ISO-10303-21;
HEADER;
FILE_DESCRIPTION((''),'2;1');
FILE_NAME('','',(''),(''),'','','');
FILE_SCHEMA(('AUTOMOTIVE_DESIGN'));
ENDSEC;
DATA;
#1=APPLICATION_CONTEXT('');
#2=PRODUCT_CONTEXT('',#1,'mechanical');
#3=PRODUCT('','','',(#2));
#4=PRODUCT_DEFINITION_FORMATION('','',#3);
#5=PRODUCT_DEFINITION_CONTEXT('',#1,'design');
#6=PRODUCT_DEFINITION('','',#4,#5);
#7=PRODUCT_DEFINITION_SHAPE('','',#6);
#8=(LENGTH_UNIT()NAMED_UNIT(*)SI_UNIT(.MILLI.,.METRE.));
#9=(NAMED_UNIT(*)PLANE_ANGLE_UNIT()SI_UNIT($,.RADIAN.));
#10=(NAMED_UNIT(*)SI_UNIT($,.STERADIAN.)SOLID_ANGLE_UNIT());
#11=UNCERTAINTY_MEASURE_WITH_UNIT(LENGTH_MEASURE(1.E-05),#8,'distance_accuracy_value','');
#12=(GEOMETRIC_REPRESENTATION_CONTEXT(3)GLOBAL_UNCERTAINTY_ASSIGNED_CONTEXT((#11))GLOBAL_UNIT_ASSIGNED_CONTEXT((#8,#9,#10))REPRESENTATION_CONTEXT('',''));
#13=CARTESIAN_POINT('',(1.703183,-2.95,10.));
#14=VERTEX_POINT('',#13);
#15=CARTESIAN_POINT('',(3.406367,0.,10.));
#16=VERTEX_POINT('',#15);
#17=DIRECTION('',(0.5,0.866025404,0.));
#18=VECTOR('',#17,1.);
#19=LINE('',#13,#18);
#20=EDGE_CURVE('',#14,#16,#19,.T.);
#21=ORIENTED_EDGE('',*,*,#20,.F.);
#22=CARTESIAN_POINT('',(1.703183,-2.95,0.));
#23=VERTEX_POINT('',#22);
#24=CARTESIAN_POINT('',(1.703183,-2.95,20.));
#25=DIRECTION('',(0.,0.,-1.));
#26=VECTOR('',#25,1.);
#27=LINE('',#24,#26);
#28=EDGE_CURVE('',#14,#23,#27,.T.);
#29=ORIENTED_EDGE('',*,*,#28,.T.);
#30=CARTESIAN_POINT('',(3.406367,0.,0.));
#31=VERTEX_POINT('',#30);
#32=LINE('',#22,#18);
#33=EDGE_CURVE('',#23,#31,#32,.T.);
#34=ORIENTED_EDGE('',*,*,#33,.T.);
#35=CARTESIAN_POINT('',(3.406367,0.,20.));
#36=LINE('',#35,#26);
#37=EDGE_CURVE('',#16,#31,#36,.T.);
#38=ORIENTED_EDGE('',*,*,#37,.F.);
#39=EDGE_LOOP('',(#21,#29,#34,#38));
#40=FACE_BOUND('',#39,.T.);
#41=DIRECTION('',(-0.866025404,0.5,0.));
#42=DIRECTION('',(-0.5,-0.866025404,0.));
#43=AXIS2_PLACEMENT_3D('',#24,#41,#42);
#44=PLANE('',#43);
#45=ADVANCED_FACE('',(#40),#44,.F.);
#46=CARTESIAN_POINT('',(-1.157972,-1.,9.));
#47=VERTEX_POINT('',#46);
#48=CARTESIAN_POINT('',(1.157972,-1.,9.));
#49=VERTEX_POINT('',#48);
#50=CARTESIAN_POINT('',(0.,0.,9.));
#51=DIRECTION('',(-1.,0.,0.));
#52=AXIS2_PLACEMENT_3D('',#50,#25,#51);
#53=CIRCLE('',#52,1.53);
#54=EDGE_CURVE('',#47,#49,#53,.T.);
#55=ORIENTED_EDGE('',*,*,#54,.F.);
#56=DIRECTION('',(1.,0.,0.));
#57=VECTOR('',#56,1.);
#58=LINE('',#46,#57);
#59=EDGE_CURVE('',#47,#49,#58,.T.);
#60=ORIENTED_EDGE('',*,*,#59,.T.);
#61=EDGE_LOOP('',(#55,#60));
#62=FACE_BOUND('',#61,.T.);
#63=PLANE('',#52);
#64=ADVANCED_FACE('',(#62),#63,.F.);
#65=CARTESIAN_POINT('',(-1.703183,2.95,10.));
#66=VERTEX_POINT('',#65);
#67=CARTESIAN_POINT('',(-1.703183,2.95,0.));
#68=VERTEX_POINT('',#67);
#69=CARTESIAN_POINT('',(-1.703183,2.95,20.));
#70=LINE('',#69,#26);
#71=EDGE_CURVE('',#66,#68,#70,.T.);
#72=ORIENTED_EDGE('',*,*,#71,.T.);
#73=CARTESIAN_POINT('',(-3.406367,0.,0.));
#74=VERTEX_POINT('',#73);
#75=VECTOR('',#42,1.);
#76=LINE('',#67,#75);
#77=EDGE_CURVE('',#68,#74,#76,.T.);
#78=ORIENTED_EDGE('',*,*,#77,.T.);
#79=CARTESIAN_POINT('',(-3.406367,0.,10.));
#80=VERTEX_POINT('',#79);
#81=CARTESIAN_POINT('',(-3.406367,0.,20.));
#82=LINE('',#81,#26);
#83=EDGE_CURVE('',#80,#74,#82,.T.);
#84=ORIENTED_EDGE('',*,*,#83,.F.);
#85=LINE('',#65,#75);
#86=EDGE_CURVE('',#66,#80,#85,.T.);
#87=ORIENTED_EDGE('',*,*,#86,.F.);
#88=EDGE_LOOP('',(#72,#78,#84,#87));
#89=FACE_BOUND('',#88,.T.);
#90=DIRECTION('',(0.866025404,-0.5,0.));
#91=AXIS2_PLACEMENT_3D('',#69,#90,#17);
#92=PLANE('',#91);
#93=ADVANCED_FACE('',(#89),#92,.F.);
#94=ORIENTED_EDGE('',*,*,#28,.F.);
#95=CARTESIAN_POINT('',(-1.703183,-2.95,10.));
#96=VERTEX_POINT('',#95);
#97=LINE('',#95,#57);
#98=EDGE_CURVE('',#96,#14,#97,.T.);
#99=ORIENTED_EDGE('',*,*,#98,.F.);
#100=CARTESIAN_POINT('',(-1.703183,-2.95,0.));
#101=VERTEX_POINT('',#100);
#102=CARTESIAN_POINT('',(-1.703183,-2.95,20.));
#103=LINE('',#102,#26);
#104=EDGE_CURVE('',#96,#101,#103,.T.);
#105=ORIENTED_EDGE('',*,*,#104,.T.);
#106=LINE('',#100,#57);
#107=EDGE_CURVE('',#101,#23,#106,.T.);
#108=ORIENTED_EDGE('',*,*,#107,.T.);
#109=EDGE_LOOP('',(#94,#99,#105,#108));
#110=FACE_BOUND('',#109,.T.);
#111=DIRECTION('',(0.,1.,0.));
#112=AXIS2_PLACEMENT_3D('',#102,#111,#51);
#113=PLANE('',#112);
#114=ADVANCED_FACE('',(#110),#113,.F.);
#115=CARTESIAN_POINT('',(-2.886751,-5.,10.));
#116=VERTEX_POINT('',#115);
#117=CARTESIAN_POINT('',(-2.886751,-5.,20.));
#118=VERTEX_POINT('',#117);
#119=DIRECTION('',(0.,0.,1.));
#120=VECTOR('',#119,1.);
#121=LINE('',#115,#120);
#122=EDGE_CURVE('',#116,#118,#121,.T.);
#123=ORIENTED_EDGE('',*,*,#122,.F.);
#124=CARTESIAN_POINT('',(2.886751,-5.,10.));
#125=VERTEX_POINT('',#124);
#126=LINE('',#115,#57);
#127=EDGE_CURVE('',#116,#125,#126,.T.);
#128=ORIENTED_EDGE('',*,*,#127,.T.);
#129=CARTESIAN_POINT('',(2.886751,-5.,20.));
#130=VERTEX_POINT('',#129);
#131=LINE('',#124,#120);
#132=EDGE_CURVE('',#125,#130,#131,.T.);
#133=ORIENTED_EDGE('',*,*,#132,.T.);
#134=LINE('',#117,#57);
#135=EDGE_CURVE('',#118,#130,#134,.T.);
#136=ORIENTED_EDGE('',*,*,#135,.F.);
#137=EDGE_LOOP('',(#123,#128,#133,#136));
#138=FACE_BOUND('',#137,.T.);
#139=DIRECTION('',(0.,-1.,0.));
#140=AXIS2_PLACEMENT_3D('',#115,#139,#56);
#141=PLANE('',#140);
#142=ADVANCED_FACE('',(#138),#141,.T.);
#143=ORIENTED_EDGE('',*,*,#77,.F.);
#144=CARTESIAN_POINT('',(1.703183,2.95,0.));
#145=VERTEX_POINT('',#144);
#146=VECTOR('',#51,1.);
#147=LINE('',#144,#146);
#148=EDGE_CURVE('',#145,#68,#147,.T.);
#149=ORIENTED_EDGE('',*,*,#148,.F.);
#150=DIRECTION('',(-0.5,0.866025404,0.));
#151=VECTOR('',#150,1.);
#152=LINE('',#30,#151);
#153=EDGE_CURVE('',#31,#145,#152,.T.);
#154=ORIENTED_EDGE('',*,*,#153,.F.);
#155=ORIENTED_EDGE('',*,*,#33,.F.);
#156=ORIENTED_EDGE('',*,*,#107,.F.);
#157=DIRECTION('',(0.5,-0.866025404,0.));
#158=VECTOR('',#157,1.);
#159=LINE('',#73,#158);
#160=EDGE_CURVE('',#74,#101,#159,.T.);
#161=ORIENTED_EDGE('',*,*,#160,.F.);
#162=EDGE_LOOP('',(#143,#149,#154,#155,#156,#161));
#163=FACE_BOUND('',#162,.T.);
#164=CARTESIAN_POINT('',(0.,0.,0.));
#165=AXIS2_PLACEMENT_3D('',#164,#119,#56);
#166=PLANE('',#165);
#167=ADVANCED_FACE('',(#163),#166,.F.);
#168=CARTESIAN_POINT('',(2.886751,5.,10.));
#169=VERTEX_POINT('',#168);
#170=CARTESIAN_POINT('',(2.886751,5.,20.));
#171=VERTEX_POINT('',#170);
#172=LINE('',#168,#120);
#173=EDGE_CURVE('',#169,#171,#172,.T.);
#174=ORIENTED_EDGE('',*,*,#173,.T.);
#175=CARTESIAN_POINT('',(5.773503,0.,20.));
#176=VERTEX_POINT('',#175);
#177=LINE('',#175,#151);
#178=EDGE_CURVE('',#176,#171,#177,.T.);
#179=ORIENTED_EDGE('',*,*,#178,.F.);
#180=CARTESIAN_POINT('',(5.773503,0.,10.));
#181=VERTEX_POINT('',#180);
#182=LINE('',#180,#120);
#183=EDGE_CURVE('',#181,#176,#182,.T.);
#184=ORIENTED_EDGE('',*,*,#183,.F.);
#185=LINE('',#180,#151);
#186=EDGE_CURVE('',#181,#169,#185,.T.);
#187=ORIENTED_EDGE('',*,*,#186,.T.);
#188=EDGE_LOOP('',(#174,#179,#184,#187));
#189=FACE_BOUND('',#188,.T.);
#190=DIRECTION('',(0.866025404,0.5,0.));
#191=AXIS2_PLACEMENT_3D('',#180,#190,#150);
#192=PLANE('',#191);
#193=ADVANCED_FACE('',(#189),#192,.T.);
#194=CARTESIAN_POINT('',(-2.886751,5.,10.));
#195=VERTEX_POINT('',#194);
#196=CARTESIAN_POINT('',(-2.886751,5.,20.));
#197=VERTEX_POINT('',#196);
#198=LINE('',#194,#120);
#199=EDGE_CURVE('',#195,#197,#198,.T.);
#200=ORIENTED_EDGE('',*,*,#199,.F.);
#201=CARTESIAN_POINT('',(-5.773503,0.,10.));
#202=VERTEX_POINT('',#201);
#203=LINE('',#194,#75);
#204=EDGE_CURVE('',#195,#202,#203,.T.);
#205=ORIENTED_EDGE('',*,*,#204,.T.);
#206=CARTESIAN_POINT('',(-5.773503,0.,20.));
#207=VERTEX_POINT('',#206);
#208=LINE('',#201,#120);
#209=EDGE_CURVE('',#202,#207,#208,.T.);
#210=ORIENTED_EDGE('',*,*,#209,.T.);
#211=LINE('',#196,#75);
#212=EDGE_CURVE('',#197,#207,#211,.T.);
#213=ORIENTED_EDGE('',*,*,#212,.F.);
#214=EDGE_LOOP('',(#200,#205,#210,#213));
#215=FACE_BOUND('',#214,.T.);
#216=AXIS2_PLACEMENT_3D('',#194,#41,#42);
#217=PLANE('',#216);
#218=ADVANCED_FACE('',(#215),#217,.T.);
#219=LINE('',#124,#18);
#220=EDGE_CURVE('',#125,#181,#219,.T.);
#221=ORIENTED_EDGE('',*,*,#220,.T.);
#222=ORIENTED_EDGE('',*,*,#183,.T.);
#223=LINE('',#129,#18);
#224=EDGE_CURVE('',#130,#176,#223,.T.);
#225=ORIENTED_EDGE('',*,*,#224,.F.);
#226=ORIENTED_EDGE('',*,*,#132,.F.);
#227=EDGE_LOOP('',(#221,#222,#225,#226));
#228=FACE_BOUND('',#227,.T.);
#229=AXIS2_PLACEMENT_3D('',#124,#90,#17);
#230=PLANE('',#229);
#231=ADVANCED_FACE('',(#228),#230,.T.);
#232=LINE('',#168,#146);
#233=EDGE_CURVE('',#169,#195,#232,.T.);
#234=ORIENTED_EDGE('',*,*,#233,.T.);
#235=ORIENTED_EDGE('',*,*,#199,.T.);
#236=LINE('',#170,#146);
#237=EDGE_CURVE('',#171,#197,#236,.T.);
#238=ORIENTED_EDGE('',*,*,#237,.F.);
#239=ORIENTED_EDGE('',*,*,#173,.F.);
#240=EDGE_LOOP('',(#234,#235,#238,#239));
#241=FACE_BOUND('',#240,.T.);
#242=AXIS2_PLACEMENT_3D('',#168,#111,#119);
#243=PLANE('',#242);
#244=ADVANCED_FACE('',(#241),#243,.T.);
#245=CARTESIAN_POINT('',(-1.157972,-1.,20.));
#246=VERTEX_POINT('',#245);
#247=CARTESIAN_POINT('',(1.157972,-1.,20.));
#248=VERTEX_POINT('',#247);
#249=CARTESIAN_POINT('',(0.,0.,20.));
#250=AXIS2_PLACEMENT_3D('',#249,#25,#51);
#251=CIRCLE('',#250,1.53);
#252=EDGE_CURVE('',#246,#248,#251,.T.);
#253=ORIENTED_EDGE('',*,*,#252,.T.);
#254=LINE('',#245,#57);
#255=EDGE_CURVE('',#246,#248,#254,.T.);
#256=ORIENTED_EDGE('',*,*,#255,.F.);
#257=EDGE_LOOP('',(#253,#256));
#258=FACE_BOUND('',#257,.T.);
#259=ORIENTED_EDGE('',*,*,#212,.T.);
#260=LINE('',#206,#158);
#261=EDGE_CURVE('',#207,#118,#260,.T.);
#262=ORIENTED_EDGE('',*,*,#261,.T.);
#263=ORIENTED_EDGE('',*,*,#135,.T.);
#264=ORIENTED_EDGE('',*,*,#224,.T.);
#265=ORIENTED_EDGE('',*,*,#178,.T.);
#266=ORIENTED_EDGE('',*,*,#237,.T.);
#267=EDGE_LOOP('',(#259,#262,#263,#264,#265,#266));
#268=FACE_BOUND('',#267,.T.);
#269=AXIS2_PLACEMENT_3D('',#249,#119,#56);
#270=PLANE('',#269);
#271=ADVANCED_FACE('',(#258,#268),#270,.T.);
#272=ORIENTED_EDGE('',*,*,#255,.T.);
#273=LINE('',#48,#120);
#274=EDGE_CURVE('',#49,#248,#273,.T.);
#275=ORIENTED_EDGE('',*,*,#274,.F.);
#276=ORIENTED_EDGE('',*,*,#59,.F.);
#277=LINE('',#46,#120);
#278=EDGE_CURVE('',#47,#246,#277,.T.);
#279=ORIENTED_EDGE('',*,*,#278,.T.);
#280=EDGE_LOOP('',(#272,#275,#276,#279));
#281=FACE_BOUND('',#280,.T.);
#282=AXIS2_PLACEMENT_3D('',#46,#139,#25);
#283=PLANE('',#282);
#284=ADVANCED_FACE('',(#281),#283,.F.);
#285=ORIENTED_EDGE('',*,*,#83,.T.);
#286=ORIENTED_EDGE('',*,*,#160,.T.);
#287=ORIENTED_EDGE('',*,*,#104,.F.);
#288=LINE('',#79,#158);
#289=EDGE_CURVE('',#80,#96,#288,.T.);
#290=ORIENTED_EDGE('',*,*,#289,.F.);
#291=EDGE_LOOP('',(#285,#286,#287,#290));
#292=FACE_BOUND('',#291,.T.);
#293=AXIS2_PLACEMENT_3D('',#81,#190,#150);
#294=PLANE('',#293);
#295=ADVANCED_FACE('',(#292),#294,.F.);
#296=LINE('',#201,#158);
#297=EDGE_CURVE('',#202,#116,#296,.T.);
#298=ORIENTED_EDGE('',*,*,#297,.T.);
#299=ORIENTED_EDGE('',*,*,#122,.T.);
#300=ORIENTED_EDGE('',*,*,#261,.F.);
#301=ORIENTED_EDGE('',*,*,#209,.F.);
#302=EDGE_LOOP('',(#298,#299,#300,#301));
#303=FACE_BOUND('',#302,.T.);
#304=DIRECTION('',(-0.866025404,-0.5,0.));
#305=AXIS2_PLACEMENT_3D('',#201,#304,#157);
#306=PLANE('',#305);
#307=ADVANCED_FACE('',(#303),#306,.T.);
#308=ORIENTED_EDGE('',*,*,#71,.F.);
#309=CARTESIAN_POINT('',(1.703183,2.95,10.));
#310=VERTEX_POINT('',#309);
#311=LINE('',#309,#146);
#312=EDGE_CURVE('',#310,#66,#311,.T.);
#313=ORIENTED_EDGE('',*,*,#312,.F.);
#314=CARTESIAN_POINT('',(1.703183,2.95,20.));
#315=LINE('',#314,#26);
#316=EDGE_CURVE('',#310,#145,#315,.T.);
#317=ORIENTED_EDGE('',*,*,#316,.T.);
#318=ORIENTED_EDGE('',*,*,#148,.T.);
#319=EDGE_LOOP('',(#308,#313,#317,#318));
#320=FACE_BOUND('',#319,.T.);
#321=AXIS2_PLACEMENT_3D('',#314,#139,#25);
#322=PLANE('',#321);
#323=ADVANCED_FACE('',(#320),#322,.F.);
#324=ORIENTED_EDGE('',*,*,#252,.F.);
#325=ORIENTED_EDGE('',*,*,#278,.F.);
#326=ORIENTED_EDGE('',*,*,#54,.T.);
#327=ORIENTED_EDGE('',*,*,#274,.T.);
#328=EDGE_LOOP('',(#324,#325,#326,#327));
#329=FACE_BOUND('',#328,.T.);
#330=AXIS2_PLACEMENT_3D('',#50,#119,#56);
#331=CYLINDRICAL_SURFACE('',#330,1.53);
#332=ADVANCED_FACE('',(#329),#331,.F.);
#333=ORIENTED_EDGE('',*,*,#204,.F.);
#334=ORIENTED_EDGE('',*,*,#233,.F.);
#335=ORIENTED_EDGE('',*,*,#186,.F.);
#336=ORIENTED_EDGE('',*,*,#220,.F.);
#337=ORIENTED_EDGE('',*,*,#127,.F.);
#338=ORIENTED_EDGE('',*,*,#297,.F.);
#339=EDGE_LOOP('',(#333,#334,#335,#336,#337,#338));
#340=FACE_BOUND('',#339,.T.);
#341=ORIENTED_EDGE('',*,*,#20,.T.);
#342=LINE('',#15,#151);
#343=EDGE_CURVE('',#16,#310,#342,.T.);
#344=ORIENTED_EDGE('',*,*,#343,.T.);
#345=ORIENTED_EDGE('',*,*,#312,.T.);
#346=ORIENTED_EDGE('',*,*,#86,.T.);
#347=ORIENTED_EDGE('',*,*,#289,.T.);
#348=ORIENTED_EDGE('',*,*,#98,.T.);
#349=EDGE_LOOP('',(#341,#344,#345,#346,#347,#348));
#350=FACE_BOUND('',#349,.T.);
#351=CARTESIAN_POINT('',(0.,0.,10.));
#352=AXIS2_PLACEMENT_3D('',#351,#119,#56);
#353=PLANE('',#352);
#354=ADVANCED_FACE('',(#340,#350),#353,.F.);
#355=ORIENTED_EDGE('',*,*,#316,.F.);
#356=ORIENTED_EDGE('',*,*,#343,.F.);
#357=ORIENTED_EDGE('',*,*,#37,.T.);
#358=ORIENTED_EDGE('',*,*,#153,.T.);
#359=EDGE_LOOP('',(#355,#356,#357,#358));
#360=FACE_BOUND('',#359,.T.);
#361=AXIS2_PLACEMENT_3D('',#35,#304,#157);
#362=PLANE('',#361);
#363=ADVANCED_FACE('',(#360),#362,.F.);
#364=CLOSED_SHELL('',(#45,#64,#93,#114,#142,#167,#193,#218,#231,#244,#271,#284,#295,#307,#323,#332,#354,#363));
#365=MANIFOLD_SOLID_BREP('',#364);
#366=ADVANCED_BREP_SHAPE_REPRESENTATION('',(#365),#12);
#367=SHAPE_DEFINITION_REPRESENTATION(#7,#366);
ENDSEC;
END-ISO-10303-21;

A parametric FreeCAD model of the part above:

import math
import FreeCAD as App
import Part
import Sketcher
from FreeCAD import Vector
Q = App.Units.Quantity


def add_polygon(sketch, points):
    """Adds a closed chain of lines whose ends are joined by coincident constraints."""
    first, n = sketch.GeometryCount, len(points)
    for a, b in zip(points, points[1:] + points[:1]):
        sketch.addGeometry(Part.LineSegment(App.Vector(*a, 0), App.Vector(*b, 0)), False)
    for i in range(n):
        sketch.addConstraint(Sketcher.Constraint("Coincident", first + i, 2, first + (i + 1) % n, 1))

doc = App.newDocument("Part")
params = doc.addObject("Spreadsheet::Sheet", "Params")
for row, (alias, value) in enumerate([
    ("pad1_length", "20 mm"),
    ("pad2_length", "10 mm"),
    ("sketch3_radius", "1.53 mm"),
    ("pocket1_length", "11 mm"),
], start=1):
    params.set(f"A{row}", alias)
    params.set(f"B{row}", "=" + value)
    params.setAlias(f"B{row}", alias)

body = doc.addObject("PartDesign::Body", "Body")

sketch1 = doc.addObject("Sketcher::SketchObject", "Sketch")
body.addObject(sketch1)
sketch1.AttachmentSupport = (doc.XY_Plane, [""])
sketch1.MapMode = "FlatFace"
add_polygon(sketch1, [(3.406367, 0), (1.703183, 2.95), (-1.703183, 2.95), (-3.406367, 0), (-1.703183, -2.95), (1.703183, -2.95)])
sketch1.addConstraint(Sketcher.Constraint("Horizontal", 1))
sketch1.addConstraint(Sketcher.Constraint("Horizontal", 4))
sketch1.addConstraint(Sketcher.Constraint("Symmetric", 0, 2, 3, 2, -1, 1))
sketch1.addConstraint(Sketcher.Constraint("Symmetric", 2, 2, 5, 2, -1, 1))
sketch1.addConstraint(Sketcher.Constraint("PointOnObject", 2, 2, -1))
sketch1.addConstraint(Sketcher.Constraint("Parallel", 2, 5))
sketch1.addConstraint(Sketcher.Constraint("Vertical", 1, 2, 3, 2))
sketch1.addConstraint(Sketcher.Constraint("Angle", 0, Q("120 deg")))
sketch1.addConstraint(Sketcher.Constraint("DistanceY", 3, 2, 1, 2, Q("5.9 mm")))
sketch1.addConstraint(Sketcher.Constraint("DistanceX", 1, 2, 1, 1, Q("3.406367 mm")))
pad1 = doc.addObject("PartDesign::Pad", "Pad")
body.addObject(pad1)
pad1.Profile = sketch1
pad1.setExpression("Length", "Params.pad1_length")

sketch2 = doc.addObject("Sketcher::SketchObject", "Sketch001")
body.addObject(sketch2)
sketch2.AttachmentSupport = (doc.XY_Plane, [""])
sketch2.MapMode = "FlatFace"
sketch2.AttachmentOffset = App.Placement(Vector(0, 0, 20), App.Rotation())
add_polygon(sketch2, [(-5.773503, 0), (-2.886751, -5), (2.886751, -5), (5.773503, 0), (2.886751, 5), (-2.886751, 5)])
sketch2.addConstraint(Sketcher.Constraint("Horizontal", 1))
sketch2.addConstraint(Sketcher.Constraint("Horizontal", 4))
sketch2.addConstraint(Sketcher.Constraint("Symmetric", 0, 2, 3, 2, -1, 1))
sketch2.addConstraint(Sketcher.Constraint("Symmetric", 2, 2, 5, 2, -1, 1))
sketch2.addConstraint(Sketcher.Constraint("PointOnObject", 2, 2, -1))
sketch2.addConstraint(Sketcher.Constraint("Parallel", 2, 5))
sketch2.addConstraint(Sketcher.Constraint("Vertical", 1, 2, 3, 2))
sketch2.addConstraint(Sketcher.Constraint("Angle", 0, Q("-60 deg")))
sketch2.addConstraint(Sketcher.Constraint("DistanceY", 0, 2, -1, 1, Q("5 mm")))
sketch2.addConstraint(Sketcher.Constraint("DistanceX", 1, 1, 1, 2, Q("5.773503 mm")))
pad2 = doc.addObject("PartDesign::Pad", "Pad001")
body.addObject(pad2)
pad2.Profile = sketch2
pad2.setExpression("Length", "Params.pad2_length")
pad2.Reversed = True

sketch3 = doc.addObject("Sketcher::SketchObject", "Sketch002")
body.addObject(sketch3)
sketch3.AttachmentSupport = (doc.XY_Plane, [""])
sketch3.MapMode = "FlatFace"
sketch3.AttachmentOffset = App.Placement(Vector(0, 0, 20), App.Rotation())
sketch3.addGeometry(Part.LineSegment(Vector(-1.157972, -1, 0), Vector(1.157972, -1, 0)), False)
sketch3.addGeometry(Part.ArcOfCircle(Part.Circle(Vector(0, 0, 0), Vector(0, 0, 1), 1.53), math.radians(-40.813184), math.radians(220.813184)), False)
sketch3.addConstraint(Sketcher.Constraint("Coincident", 0, 1, 1, 2))
sketch3.addConstraint(Sketcher.Constraint("Coincident", 1, 1, 0, 2))
sketch3.addConstraint(Sketcher.Constraint("Horizontal", 0))
sketch3.addConstraint(Sketcher.Constraint("Coincident", 1, 3, -1, 1))
sketch3.addConstraint(Sketcher.Constraint("Radius", 1, Q("1.53 mm")))
sketch3.addConstraint(Sketcher.Constraint("DistanceY", 0, 1, -1, 1, Q("1 mm")))
sketch3.setExpression("Constraints[4]", "Params.sketch3_radius")
pocket1 = doc.addObject("PartDesign::Pocket", "Pocket")
body.addObject(pocket1)
pocket1.Profile = sketch3
pocket1.setExpression("Length", "Params.pocket1_length")

doc.recompute()
